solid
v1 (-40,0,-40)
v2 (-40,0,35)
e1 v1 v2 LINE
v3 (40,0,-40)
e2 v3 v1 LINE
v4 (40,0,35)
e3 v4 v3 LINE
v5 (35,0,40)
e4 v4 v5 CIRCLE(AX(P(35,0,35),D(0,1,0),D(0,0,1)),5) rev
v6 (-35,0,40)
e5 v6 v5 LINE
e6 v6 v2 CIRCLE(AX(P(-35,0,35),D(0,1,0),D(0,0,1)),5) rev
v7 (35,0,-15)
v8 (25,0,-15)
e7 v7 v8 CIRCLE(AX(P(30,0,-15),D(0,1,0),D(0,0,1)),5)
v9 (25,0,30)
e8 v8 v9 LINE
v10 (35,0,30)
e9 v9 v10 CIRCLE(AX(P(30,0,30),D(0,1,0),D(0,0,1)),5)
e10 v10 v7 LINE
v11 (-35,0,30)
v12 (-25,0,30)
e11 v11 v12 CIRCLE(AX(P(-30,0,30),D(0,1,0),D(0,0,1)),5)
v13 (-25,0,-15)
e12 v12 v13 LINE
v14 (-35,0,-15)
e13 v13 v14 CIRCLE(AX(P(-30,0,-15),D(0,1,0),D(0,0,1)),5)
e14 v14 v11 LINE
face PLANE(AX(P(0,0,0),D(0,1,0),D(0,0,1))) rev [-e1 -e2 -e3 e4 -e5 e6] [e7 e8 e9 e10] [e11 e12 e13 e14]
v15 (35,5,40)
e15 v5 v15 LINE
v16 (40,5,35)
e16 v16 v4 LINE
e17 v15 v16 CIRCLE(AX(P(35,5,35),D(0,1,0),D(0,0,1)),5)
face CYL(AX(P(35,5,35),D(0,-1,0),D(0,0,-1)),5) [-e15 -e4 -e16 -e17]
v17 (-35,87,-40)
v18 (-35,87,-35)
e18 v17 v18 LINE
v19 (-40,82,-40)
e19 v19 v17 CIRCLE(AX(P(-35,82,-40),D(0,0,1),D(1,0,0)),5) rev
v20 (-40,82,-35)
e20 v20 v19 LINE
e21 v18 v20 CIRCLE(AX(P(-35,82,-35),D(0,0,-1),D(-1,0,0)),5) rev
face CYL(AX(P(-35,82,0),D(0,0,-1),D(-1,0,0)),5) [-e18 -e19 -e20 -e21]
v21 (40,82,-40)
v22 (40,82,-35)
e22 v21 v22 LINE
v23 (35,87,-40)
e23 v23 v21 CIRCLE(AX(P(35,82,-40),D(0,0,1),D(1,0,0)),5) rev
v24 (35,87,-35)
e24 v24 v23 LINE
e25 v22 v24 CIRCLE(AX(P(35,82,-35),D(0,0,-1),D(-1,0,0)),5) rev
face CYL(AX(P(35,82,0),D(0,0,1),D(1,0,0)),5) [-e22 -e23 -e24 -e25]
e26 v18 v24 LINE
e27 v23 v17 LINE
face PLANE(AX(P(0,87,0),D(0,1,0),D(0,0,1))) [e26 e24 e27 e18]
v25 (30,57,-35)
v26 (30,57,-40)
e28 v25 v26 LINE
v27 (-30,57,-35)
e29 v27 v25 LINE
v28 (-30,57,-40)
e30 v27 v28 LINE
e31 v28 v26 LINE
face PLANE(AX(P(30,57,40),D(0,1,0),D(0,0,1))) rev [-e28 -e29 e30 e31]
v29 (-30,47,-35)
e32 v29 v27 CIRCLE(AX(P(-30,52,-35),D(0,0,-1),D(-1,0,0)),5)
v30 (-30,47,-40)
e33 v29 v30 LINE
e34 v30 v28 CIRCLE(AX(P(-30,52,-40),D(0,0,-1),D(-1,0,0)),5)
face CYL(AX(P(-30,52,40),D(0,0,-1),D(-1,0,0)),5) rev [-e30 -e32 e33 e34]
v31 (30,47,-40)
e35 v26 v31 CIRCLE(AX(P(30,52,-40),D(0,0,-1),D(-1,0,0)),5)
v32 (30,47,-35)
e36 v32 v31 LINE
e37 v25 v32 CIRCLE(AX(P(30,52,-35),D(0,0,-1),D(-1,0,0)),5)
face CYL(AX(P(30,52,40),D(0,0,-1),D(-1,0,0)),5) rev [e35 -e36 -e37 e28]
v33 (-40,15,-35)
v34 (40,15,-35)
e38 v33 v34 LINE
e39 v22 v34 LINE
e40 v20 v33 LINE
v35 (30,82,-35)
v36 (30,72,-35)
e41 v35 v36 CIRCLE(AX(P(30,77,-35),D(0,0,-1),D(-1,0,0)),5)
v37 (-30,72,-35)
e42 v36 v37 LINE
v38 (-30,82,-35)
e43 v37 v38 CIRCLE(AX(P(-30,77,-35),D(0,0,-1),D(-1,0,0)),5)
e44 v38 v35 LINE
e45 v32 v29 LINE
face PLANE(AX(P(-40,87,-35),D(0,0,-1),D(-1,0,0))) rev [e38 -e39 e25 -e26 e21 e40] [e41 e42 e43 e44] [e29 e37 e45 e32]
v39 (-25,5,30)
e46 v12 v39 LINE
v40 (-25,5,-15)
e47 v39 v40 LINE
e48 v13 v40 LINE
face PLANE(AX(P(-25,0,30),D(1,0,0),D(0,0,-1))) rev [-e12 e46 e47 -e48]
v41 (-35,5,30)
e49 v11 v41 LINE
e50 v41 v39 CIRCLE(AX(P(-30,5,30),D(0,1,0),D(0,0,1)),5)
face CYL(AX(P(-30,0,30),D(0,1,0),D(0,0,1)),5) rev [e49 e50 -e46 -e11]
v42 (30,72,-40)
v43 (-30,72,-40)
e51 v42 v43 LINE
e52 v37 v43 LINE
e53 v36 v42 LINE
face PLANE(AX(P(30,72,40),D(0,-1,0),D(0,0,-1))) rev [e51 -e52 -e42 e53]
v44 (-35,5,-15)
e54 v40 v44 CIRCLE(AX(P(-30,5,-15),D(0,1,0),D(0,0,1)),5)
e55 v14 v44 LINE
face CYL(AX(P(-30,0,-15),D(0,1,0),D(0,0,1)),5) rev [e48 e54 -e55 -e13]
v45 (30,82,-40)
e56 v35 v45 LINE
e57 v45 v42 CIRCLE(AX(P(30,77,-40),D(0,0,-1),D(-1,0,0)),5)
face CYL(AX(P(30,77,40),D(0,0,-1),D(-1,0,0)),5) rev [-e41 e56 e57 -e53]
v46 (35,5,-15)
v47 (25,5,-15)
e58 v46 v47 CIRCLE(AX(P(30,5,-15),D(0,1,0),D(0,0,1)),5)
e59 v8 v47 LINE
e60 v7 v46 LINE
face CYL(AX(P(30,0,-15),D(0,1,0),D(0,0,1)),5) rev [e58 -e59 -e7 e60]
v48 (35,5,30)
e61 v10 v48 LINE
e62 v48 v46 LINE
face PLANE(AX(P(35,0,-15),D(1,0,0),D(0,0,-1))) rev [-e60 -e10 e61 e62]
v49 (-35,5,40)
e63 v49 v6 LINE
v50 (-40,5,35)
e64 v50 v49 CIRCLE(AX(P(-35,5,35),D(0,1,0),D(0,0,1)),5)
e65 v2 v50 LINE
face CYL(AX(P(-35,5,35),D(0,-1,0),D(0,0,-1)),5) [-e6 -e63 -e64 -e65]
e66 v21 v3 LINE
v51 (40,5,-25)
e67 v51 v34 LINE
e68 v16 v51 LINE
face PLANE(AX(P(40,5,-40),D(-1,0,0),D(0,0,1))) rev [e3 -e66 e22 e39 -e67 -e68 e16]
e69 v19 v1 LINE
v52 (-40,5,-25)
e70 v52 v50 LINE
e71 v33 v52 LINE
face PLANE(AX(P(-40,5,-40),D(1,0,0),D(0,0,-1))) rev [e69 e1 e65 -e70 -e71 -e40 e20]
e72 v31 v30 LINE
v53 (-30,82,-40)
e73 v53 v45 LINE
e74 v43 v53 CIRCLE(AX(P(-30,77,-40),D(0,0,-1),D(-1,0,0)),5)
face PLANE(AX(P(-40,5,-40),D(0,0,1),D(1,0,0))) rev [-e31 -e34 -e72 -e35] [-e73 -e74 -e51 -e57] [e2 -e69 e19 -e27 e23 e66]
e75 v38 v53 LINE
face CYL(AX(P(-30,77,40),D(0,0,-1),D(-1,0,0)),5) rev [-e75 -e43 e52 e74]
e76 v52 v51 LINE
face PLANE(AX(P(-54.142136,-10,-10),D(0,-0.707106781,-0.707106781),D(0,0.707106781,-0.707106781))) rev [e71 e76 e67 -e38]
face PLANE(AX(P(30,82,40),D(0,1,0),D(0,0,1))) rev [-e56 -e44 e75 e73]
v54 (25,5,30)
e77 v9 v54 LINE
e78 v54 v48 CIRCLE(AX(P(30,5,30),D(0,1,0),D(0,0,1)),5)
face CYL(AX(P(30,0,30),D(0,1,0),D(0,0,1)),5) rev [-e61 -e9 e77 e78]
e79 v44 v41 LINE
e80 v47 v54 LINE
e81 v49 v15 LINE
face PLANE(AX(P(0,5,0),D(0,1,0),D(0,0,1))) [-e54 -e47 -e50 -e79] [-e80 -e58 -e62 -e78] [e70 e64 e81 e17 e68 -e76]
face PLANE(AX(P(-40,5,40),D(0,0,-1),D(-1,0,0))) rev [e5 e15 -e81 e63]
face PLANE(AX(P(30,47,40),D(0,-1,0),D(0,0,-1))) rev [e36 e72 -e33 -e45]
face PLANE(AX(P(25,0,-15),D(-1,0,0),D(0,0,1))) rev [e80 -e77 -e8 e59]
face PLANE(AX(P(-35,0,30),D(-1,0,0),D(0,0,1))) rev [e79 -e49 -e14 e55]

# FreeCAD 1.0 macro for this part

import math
import FreeCAD as App
import Part
import Sketcher
from FreeCAD import Vector
Q = App.Units.Quantity


def edges_at(feature, points):
    """Names of the edges that pass closest to the given points."""
    edges = feature.Shape.Edges
    near = lambda p: min(range(len(edges)), key=lambda i: edges[i].distToShape(Part.Vertex(*p))[0])
    return sorted({f"Edge{near(p) + 1}" for p in points})


def add_polygon(sketch, points):
    """Adds a closed chain of lines whose ends are joined by coincident constraints."""
    first, n = sketch.GeometryCount, len(points)
    for a, b in zip(points, points[1:] + points[:1]):
        sketch.addGeometry(Part.LineSegment(App.Vector(*a, 0), App.Vector(*b, 0)), False)
    for i in range(n):
        sketch.addConstraint(Sketcher.Constraint("Coincident", first + i, 2, first + (i + 1) % n, 1))

doc = App.newDocument("Part")
params = doc.addObject("Spreadsheet::Sheet", "Params")
for row, (alias, value) in enumerate([
    ("sketch1_width", "80 mm"),
    ("pad1_length", "5 mm"),
    ("sketch2_width", "80 mm"),
    ("sketch2_height", "5 mm"),
    ("pad2_length", "82 mm"),
    ("sketch3_radius", "5 mm"),
    ("sketch3_width", "60 mm"),
    ("sketch4_radius", "5 mm"),
    ("sketch4_height", "45 mm"),
    ("fillet_radius", "5 mm"),
    ("fillet2_radius", "5 mm"),
    ("sketch5_width", "10 mm"),
    ("pad3_length", "80 mm"),
], start=1):
    params.set(f"A{row}", alias)
    params.set(f"B{row}", "=" + value)
    params.setAlias(f"B{row}", alias)

body = doc.addObject("PartDesign::Body", "Body")

# Sketch on XZ plane
sketch1 = body.newObject("Sketcher::SketchObject", "Sketch")
sketch1.AttachmentSupport = (doc.getObject("XZ_Plane"), [""])
sketch1.MapMode = "FlatFace"
add_polygon(sketch1, [(-40, -40), (-40, 40), (40, 40), (40, -40)])  # lines 0-3
sketch1.addConstraint([
    Sketcher.Constraint("Vertical", 0),
    Sketcher.Constraint("Horizontal", 1),
    Sketcher.Constraint("Vertical", 2),
    Sketcher.Constraint("Horizontal", 3),
    Sketcher.Constraint("Symmetric", 0, 2, 2, 2, -1, 1),
    Sketcher.Constraint("Equal", 3, 0),
    Sketcher.Constraint("DistanceX", 1, 1, 1, 2, Q("80 mm")),
])
sketch1.setExpression("Constraints[10]", "Params.sketch1_width")
pad1 = body.newObject("PartDesign::Pad", "Pad")
pad1.Profile = sketch1
pad1.setExpression("Length", "Params.pad1_length")
pad1.Reversed = True

# Sketch on XZ plane
sketch2 = body.newObject("Sketcher::SketchObject", "Sketch001")
sketch2.AttachmentSupport = (doc.getObject("XZ_Plane"), [""])
sketch2.MapMode = "FlatFace"
sketch2.AttachmentOffset = App.Placement(Vector(0, 0, -5), App.Rotation())
add_polygon(sketch2, [(-40, -40), (-40, -35), (40, -35), (40, -40)])  # lines 0-3
sketch2.addConstraint([
    Sketcher.Constraint("Vertical", 0),
    Sketcher.Constraint("Horizontal", 1),
    Sketcher.Constraint("Vertical", 2),
    Sketcher.Constraint("Horizontal", 3),
    Sketcher.Constraint("DistanceX", 1, 1, 1, 2, Q("80 mm")),
    Sketcher.Constraint("DistanceY", 0, 1, 0, 2, Q("5 mm")),
    Sketcher.Constraint("DistanceX", 0, 2, -1, 1, Q("40 mm")),
    Sketcher.Constraint("DistanceY", 0, 2, -1, 1, Q("35 mm")),
])
sketch2.setExpression("Constraints[8]", "Params.sketch2_width")
sketch2.setExpression("Constraints[9]", "Params.sketch2_height")
pad2 = body.newObject("PartDesign::Pad", "Pad001")
pad2.Profile = sketch2
pad2.setExpression("Length", "Params.pad2_length")
pad2.Reversed = True

# Sketch on XY plane
sketch3 = body.newObject("Sketcher::SketchObject", "Sketch002")
sketch3.AttachmentSupport = (doc.getObject("XY_Plane"), [""])
sketch3.MapMode = "FlatFace"
sketch3.AttachmentOffset = App.Placement(Vector(0, 0, -40), App.Rotation())
sketch3.addGeometry([
    Part.LineSegment(Vector(-30, 82, 0), Vector(30, 82, 0)),  # 0
    Part.ArcOfCircle(Part.Circle(Vector(30, 77, 0), Vector(0, 0, 1), 5), math.radians(-90), math.radians(90)),  # 1
    Part.LineSegment(Vector(30, 72, 0), Vector(-30, 72, 0)),  # 2
    Part.ArcOfCircle(Part.Circle(Vector(-30, 77, 0), Vector(0, 0, 1), 5), math.radians(90), math.radians(270)),  # 3
    Part.LineSegment(Vector(-30, 57, 0), Vector(30, 57, 0)),  # 4
    Part.ArcOfCircle(Part.Circle(Vector(30, 52, 0), Vector(0, 0, 1), 5), math.radians(-90), math.radians(90)),  # 5
    Part.LineSegment(Vector(30, 47, 0), Vector(-30, 47, 0)),  # 6
    Part.ArcOfCircle(Part.Circle(Vector(-30, 52, 0), Vector(0, 0, 1), 5), math.radians(90), math.radians(270)),  # 7
], False)
sketch3.addConstraint([
    Sketcher.Constraint("Tangent", 0, 2, 1, 2),
    Sketcher.Constraint("Tangent", 1, 1, 2, 1),
    Sketcher.Constraint("Tangent", 2, 2, 3, 2),
    Sketcher.Constraint("Tangent", 3, 1, 0, 1),
    Sketcher.Constraint("Tangent", 4, 2, 5, 2),
    Sketcher.Constraint("Tangent", 5, 1, 6, 1),
    Sketcher.Constraint("Tangent", 6, 2, 7, 2),
    Sketcher.Constraint("Tangent", 7, 1, 4, 1),
    Sketcher.Constraint("Horizontal", 0),
    Sketcher.Constraint("Horizontal", 2),
    Sketcher.Constraint("Horizontal", 4),
    Sketcher.Constraint("Horizontal", 6),
    Sketcher.Constraint("Equal", 3, 5),
    Sketcher.Constraint("Vertical", 1, 3, 5, 3),
    Sketcher.Constraint("Vertical", 3, 3, 7, 3),
    Sketcher.Constraint("Radius", 1, Q("5 mm")),
    Sketcher.Constraint("DistanceX", 0, 1, 0, 2, Q("60 mm")),
    Sketcher.Constraint("DistanceX", -1, 1, 1, 3, Q("30 mm")),
    Sketcher.Constraint("DistanceY", -1, 1, 1, 3, Q("77 mm")),
    Sketcher.Constraint("DistanceY", -1, 1, 5, 3, Q("52 mm")),
])
sketch3.setExpression("Constraints[15]", "Params.sketch3_radius")
sketch3.setExpression("Constraints[16]", "Params.sketch3_width")
pocket1 = body.newObject("PartDesign::Pocket", "Pocket")
pocket1.Profile = sketch3
pocket1.Type = "ThroughAll"
pocket1.Reversed = True

# Sketch on XZ plane
sketch4 = body.newObject("Sketcher::SketchObject", "Sketch003")
sketch4.AttachmentSupport = (doc.getObject("XZ_Plane"), [""])
sketch4.MapMode = "FlatFace"
sketch4.AttachmentOffset = App.Placement(Vector(0, 0, -5), App.Rotation())
sketch4.addGeometry([
    Part.LineSegment(Vector(-35, -15, 0), Vector(-35, 30, 0)),  # 0
    Part.ArcOfCircle(Part.Circle(Vector(-30, 30, 0), Vector(0, 0, 1), 5), math.radians(0), math.radians(180)),  # 1
    Part.LineSegment(Vector(-25, 30, 0), Vector(-25, -15, 0)),  # 2
    Part.ArcOfCircle(Part.Circle(Vector(-30, -15, 0), Vector(0, 0, 1), 5), math.radians(180), math.radians(360)),  # 3
    Part.LineSegment(Vector(35, 30, 0), Vector(35, -15, 0)),  # 4
    Part.ArcOfCircle(Part.Circle(Vector(30, -15, 0), Vector(0, 0, 1), 5), math.radians(180), math.radians(360)),  # 5
    Part.LineSegment(Vector(25, -15, 0), Vector(25, 30, 0)),  # 6
    Part.ArcOfCircle(Part.Circle(Vector(30, 30, 0), Vector(0, 0, 1), 5), math.radians(0), math.radians(180)),  # 7
], False)
sketch4.addConstraint([
    Sketcher.Constraint("Tangent", 0, 2, 1, 2),
    Sketcher.Constraint("Tangent", 1, 1, 2, 1),
    Sketcher.Constraint("Tangent", 2, 2, 3, 2),
    Sketcher.Constraint("Tangent", 3, 1, 0, 1),
    Sketcher.Constraint("Tangent", 4, 2, 5, 2),
    Sketcher.Constraint("Tangent", 5, 1, 6, 1),
    Sketcher.Constraint("Tangent", 6, 2, 7, 2),
    Sketcher.Constraint("Tangent", 7, 1, 4, 1),
    Sketcher.Constraint("Vertical", 0),
    Sketcher.Constraint("Vertical", 2),
    Sketcher.Constraint("Vertical", 4),
    Sketcher.Constraint("Vertical", 6),
    Sketcher.Constraint("Equal", 3, 5),
    Sketcher.Constraint("Symmetric", 3, 3, 5, 3, -2),
    Sketcher.Constraint("Horizontal", 1, 3, 7, 3),
    Sketcher.Constraint("Radius", 1, Q("5 mm")),
    Sketcher.Constraint("DistanceY", 0, 1, 0, 2, Q("45 mm")),
    Sketcher.Constraint("DistanceX", 1, 3, -1, 1, Q("30 mm")),
    Sketcher.Constraint("DistanceY", -1, 1, 1, 3, Q("30 mm")),
])
sketch4.setExpression("Constraints[15]", "Params.sketch4_radius")
sketch4.setExpression("Constraints[16]", "Params.sketch4_height")
pocket2 = body.newObject("PartDesign::Pocket", "Pocket001")
pocket2.Profile = sketch4
pocket2.Type = "ThroughAll"
pocket2.Reversed = True
doc.recompute()

fillet = body.newObject("PartDesign::Fillet", "Fillet")
fillet.Base = (pocket2, edges_at(pocket2, [(40, 2.5, 40), (-40, 2.5, 40)]))
fillet.setExpression("Radius", "Params.fillet_radius")
doc.recompute()

fillet2 = body.newObject("PartDesign::Fillet", "Fillet001")
fillet2.Base = (fillet, edges_at(fillet, [(-40, 87, -37.5), (40, 87, -37.5)]))
fillet2.setExpression("Radius", "Params.fillet2_radius")

# Sketch on YZ plane
sketch5 = body.newObject("Sketcher::SketchObject", "Sketch004")
sketch5.AttachmentSupport = (doc.getObject("YZ_Plane"), [""])
sketch5.MapMode = "FlatFace"
sketch5.AttachmentOffset = App.Placement(Vector(0, 0, 40), App.Rotation())
add_polygon(sketch5, [(15, -35), (5, -25), (5, -35)])  # lines 0-2
sketch5.addConstraint([
    Sketcher.Constraint("Vertical", 1),
    Sketcher.Constraint("Horizontal", 2),
    Sketcher.Constraint("Equal", 2, 1),
    Sketcher.Constraint("DistanceX", 2, 1, 2, 2, Q("10 mm")),
    Sketcher.Constraint("DistanceX", -1, 1, 0, 2, Q("5 mm")),
    Sketcher.Constraint("DistanceY", 0, 2, -1, 1, Q("25 mm")),
])
sketch5.setExpression("Constraints[6]", "Params.sketch5_width")
pad3 = body.newObject("PartDesign::Pad", "Pad002")
pad3.Profile = sketch5
pad3.setExpression("Length", "Params.pad3_length")
pad3.Reversed = True

doc.recompute()
